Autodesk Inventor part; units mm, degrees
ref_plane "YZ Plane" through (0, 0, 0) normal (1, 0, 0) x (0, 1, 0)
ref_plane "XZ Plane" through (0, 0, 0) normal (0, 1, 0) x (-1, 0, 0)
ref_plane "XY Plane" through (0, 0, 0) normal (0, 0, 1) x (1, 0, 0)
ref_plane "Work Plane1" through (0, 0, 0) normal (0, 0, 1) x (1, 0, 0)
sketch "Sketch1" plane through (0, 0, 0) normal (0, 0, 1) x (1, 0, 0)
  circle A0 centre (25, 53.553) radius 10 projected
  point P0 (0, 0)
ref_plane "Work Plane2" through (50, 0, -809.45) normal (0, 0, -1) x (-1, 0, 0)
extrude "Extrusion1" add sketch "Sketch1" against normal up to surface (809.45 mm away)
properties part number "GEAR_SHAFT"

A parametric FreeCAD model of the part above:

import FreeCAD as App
import Part
import Sketcher
from FreeCAD import Vector

doc = App.newDocument("Part")
params = doc.addObject("Spreadsheet::Sheet", "Params")
for row, (alias, value) in enumerate([
    ("sketch1_diameter", "20 mm"),
    ("pad1_length", "809.45 mm"),
], start=1):
    params.set(f"A{row}", alias)
    params.set(f"B{row}", "=" + value)
    params.setAlias(f"B{row}", alias)

body = doc.addObject("PartDesign::Body", "Body")

# Sketch on XY plane
sketch1 = body.newObject("Sketcher::SketchObject", "Sketch")
sketch1.AttachmentSupport = (doc.getObject("XY_Plane"), [""])
sketch1.MapMode = "FlatFace"
sketch1.addGeometry(Part.Circle(Vector(25, 54, 0), Vector(0, 0, 1), 10), False)
sketch1.addConstraint([
    Sketcher.Constraint("Diameter", 0, 20.0),
    Sketcher.Constraint("DistanceX", -1, 1, 0, 3, 25.0),
    Sketcher.Constraint("DistanceY", -1, 1, 0, 3, 53.553),
])
sketch1.setExpression("Constraints[0]", "Params.sketch1_diameter")
pad1 = body.newObject("PartDesign::Pad", "Pad")
pad1.Profile = sketch1
pad1.setExpression("Length", "Params.pad1_length")
pad1.Reversed = True

doc.recompute()
